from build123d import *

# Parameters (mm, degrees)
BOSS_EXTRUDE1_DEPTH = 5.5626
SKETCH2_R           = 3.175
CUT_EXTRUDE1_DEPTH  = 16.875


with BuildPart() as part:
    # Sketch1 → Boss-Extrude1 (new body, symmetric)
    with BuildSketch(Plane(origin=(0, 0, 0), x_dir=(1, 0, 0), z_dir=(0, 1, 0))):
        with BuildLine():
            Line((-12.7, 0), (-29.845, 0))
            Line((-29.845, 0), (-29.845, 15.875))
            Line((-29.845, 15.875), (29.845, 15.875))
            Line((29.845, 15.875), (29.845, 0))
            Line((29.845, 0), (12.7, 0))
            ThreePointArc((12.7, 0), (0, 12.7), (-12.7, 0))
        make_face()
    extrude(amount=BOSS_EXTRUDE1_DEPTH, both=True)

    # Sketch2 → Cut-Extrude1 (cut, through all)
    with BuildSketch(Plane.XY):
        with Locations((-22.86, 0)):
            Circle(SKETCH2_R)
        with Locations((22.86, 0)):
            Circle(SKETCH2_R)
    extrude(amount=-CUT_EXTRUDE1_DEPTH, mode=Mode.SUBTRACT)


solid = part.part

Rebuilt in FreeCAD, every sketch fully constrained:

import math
import FreeCAD as App
import Part
import Sketcher
Q = App.Units.Quantity

doc = App.newDocument("Part")
body = doc.addObject("PartDesign::Body", "Body")

sketch1 = doc.addObject("Sketcher::SketchObject", "Sketch")
body.addObject(sketch1)
sketch1.AttachmentSupport = (doc.XZ_Plane, [""])
sketch1.MapMode = "FlatFace"
sketch1.addGeometry([
    Part.LineSegment(App.Vector(-29.845, 0, 0), App.Vector(-12.7, 0, 0)),
    Part.ArcOfCircle(Part.Circle(App.Vector(0, 0, 0), App.Vector(0, 0, 1), 12.7), math.radians(180), math.radians(360)),
    Part.LineSegment(App.Vector(12.7, 0, 0), App.Vector(29.845, 0, 0)),
    Part.LineSegment(App.Vector(29.845, 0, 0), App.Vector(29.845, -15.875, 0)),
    Part.LineSegment(App.Vector(29.845, -15.875, 0), App.Vector(-29.845, -15.875, 0)),
    Part.LineSegment(App.Vector(-29.845, -15.875, 0), App.Vector(-29.845, 0, 0)),
], False)
sketch1.addConstraint([
    Sketcher.Constraint("Coincident", 0, 2, 1, 1),
    Sketcher.Constraint("Coincident", 1, 2, 2, 1),
    Sketcher.Constraint("Coincident", 2, 2, 3, 1),
    Sketcher.Constraint("Coincident", 3, 2, 4, 1),
    Sketcher.Constraint("Coincident", 4, 2, 5, 1),
    Sketcher.Constraint("Coincident", 5, 2, 0, 1),
    Sketcher.Constraint("Horizontal", 0),
    Sketcher.Constraint("Horizontal", 2),
    Sketcher.Constraint("Vertical", 3),
    Sketcher.Constraint("Horizontal", 4),
    Sketcher.Constraint("Vertical", 5),
    Sketcher.Constraint("Coincident", 1, 3, -1, 1),
    Sketcher.Constraint("Symmetric", 2, 2, 5, 2, -1, 1),
    Sketcher.Constraint("PointOnObject", 0, 2, -1),
    Sketcher.Constraint("Radius", 1, Q("0.5 in")),
    Sketcher.Constraint("DistanceX", 4, 2, 4, 1, Q("2.35 in")),
    Sketcher.Constraint("DistanceY", 3, 2, 3, 1, Q("0.625 in")),
])
pad1 = doc.addObject("PartDesign::Pad", "Pad")
body.addObject(pad1)
pad1.Profile = sketch1
pad1.Length = Q("0.438 in")
pad1.Midplane = True

sketch2 = doc.addObject("Sketcher::SketchObject", "Sketch001")
body.addObject(sketch2)
sketch2.AttachmentSupport = (doc.XY_Plane, [""])
sketch2.MapMode = "FlatFace"
sketch2.addGeometry([
    Part.Circle(App.Vector(-22.86, 0, 0), App.Vector(0, 0, 1), 3.175),
    Part.Circle(App.Vector(22.86, 0, 0), App.Vector(0, 0, 1), 3.175),
], False)
sketch2.addConstraint([
    Sketcher.Constraint("Equal", 0, 1),
    Sketcher.Constraint("Symmetric", 0, 3, 1, 3, -1, 1),
    Sketcher.Constraint("PointOnObject", 0, 3, -1),
    Sketcher.Constraint("Diameter", 0, Q("0.25 in")),
    Sketcher.Constraint("DistanceX", 0, 3, -1, 1, Q("0.9 in")),
])
pocket1 = doc.addObject("PartDesign::Pocket", "Pocket")
body.addObject(pocket1)
pocket1.Profile = sketch2
pocket1.Type = "ThroughAll"

doc.recompute()
